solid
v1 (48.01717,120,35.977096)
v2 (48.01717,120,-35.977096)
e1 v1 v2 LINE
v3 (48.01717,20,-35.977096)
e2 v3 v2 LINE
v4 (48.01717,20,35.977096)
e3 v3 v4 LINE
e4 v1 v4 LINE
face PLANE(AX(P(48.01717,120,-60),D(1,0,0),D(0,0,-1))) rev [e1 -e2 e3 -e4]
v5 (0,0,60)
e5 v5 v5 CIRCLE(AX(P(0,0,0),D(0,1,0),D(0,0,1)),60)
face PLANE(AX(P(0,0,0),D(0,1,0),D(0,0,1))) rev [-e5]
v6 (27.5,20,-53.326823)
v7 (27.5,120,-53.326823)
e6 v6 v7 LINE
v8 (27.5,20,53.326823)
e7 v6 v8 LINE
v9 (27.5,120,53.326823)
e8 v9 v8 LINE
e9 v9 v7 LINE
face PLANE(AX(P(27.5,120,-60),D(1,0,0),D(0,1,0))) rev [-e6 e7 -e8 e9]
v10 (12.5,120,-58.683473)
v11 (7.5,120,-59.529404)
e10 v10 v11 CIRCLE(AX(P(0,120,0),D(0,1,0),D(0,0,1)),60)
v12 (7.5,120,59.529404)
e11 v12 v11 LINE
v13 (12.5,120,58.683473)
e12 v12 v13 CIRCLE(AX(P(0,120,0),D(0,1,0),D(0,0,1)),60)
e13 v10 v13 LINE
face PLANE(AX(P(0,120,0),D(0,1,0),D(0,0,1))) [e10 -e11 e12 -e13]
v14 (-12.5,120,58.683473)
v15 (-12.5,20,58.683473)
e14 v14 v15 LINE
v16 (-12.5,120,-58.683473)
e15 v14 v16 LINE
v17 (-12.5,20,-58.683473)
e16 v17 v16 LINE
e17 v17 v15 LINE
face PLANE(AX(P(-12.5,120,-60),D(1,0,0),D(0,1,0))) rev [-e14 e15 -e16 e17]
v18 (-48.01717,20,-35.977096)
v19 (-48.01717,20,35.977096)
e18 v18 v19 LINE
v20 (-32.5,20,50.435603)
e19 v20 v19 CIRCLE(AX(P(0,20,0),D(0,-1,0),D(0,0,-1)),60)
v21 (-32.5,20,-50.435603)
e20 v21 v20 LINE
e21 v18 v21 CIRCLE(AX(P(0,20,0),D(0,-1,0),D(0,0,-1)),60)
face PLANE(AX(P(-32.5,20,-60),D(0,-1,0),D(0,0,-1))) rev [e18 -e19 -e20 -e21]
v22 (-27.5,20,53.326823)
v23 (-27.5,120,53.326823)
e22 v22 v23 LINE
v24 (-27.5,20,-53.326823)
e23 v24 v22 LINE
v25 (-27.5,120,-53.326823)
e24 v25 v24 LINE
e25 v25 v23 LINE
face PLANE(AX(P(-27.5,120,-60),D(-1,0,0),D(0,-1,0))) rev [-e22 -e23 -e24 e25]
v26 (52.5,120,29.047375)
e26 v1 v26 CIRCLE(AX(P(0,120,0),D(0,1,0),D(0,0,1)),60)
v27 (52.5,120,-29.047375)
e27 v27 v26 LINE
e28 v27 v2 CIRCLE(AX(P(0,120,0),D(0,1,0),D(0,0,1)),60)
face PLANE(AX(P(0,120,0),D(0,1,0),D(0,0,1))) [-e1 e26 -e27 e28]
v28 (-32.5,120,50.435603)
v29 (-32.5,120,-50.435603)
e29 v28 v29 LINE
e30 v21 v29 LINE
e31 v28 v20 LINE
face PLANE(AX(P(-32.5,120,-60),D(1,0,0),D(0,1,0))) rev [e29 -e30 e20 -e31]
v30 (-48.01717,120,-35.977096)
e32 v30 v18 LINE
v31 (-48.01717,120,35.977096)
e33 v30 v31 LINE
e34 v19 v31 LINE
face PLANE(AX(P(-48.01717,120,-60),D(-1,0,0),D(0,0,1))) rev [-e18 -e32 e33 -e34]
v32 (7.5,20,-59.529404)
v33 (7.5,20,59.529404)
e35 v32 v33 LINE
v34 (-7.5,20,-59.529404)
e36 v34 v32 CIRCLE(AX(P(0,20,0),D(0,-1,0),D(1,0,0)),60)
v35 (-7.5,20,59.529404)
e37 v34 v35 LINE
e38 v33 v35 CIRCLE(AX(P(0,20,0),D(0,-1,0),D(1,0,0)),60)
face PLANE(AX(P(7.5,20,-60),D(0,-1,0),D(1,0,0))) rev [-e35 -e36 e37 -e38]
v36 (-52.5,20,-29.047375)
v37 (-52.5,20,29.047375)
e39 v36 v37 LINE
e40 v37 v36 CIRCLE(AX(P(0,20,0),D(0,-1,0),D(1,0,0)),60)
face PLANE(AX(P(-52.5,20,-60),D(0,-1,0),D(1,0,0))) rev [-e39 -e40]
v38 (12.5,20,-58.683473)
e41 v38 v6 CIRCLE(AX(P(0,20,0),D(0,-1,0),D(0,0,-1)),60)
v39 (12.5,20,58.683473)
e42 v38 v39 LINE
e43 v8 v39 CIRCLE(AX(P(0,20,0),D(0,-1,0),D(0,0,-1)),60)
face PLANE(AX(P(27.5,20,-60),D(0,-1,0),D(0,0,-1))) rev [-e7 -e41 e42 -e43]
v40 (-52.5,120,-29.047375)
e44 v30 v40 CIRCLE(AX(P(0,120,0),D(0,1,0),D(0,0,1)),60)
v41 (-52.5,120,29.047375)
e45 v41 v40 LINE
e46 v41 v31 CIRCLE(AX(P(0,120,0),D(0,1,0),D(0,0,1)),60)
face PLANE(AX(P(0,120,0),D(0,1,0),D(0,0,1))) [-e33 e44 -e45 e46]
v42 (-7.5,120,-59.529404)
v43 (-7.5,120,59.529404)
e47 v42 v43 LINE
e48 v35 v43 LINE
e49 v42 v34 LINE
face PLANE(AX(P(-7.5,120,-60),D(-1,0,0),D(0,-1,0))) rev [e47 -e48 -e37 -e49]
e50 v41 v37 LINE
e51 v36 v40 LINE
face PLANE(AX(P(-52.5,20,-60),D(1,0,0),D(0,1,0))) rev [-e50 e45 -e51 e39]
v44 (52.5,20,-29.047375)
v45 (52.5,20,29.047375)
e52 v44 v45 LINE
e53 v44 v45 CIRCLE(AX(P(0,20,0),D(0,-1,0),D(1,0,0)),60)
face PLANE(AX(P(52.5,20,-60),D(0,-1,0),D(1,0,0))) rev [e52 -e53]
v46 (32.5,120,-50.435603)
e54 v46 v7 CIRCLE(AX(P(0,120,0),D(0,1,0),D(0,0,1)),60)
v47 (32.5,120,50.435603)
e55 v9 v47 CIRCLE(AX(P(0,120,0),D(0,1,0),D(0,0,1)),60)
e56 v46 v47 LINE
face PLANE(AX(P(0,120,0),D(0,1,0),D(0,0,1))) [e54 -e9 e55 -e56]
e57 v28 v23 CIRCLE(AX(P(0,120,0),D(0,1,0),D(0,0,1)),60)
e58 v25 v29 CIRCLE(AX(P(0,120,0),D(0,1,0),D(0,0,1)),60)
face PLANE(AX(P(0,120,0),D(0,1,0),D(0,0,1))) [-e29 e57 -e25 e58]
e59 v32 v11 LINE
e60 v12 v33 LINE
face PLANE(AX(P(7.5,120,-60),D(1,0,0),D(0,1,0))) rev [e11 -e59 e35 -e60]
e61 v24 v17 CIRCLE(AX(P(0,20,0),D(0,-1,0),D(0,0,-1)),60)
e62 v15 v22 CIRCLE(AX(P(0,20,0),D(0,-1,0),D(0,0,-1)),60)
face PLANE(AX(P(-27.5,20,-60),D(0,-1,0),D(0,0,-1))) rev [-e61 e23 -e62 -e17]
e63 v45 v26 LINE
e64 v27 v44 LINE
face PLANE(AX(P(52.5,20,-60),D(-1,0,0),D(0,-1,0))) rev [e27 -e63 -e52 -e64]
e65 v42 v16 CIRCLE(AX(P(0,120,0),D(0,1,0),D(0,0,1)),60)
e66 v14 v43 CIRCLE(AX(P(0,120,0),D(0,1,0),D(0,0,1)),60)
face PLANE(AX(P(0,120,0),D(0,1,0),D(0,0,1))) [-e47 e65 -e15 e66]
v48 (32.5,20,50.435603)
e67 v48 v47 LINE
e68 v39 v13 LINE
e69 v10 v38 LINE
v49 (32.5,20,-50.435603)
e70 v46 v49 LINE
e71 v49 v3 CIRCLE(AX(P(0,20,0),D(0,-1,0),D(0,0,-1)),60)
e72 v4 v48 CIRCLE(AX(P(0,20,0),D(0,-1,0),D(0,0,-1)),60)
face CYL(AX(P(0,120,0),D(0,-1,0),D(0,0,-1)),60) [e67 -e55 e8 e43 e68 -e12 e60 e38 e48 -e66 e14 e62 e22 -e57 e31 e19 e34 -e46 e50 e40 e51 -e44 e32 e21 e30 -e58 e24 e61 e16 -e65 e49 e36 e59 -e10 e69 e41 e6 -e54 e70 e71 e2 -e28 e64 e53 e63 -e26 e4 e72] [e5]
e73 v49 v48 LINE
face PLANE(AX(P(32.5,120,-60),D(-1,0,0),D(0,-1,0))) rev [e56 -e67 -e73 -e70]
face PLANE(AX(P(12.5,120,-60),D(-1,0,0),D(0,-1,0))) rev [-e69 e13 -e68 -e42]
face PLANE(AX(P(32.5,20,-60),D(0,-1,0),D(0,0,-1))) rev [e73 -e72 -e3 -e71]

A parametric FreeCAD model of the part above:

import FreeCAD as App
import Part
import Sketcher
from FreeCAD import Vector

doc = App.newDocument("Part")
body = doc.addObject("PartDesign::Body", "Body")

# Sketch on XZ plane
sketch1 = body.newObject("Sketcher::SketchObject", "Sketch")
sketch1.AttachmentSupport = (doc.getObject("XZ_Plane"), [""])
sketch1.MapMode = "FlatFace"
sketch1.addGeometry(Part.Circle(Vector(0, 0, 0), Vector(0, 0, 1), 60), False)
sketch1.addConstraint([
    Sketcher.Constraint("Coincident", 0, 3, -1, 1),
    Sketcher.Constraint("Diameter", 0, 120.0),
])
pad1 = body.newObject("PartDesign::Pad", "Pad")
pad1.Profile = sketch1
pad1.Length = 120
pad1.Reversed = True

# Sketch on XY plane
sketch2 = body.newObject("Sketcher::SketchObject", "Sketch001")
sketch2.AttachmentSupport = (doc.getObject("XY_Plane"), [""])
sketch2.MapMode = "FlatFace"
sketch2.addGeometry([
    Part.LineSegment(Vector(-60, 120, 0), Vector(-60, 20, 0)),  # 0
    Part.LineSegment(Vector(-60, 20, 0), Vector(-52, 20, 0)),  # 1
    Part.LineSegment(Vector(-52, 20, 0), Vector(-52, 120, 0)),  # 2
    Part.LineSegment(Vector(-52, 120, 0), Vector(-60, 120, 0)),  # 3
    Part.LineSegment(Vector(-48, 120, 0), Vector(-48, 20, 0)),  # 4
    Part.LineSegment(Vector(-48, 20, 0), Vector(-32, 20, 0)),  # 5
    Part.LineSegment(Vector(-32, 20, 0), Vector(-32, 120, 0)),  # 6
    Part.LineSegment(Vector(-32, 120, 0), Vector(-48, 120, 0)),  # 7
    Part.LineSegment(Vector(-28, 120, 0), Vector(-28, 20, 0)),  # 8
    Part.LineSegment(Vector(-28, 20, 0), Vector(-12, 20, 0)),  # 9
    Part.LineSegment(Vector(-12, 20, 0), Vector(-12, 120, 0)),  # 10
    Part.LineSegment(Vector(-12, 120, 0), Vector(-28, 120, 0)),  # 11
    Part.LineSegment(Vector(-8, 120, 0), Vector(-8, 20, 0)),  # 12
    Part.LineSegment(Vector(-8, 20, 0), Vector(8, 20, 0)),  # 13
    Part.LineSegment(Vector(8, 20, 0), Vector(8, 120, 0)),  # 14
    Part.LineSegment(Vector(8, 120, 0), Vector(-8, 120, 0)),  # 15
    Part.LineSegment(Vector(12, 120, 0), Vector(12, 20, 0)),  # 16
    Part.LineSegment(Vector(12, 20, 0), Vector(28, 20, 0)),  # 17
    Part.LineSegment(Vector(28, 20, 0), Vector(28, 120, 0)),  # 18
    Part.LineSegment(Vector(28, 120, 0), Vector(12, 120, 0)),  # 19
    Part.LineSegment(Vector(32, 120, 0), Vector(32, 20, 0)),  # 20
    Part.LineSegment(Vector(32, 20, 0), Vector(48, 20, 0)),  # 21
    Part.LineSegment(Vector(48, 20, 0), Vector(48, 120, 0)),  # 22
    Part.LineSegment(Vector(48, 120, 0), Vector(32, 120, 0)),  # 23
    Part.LineSegment(Vector(52, 120, 0), Vector(52, 20, 0)),  # 24
    Part.LineSegment(Vector(52, 20, 0), Vector(60, 20, 0)),  # 25
    Part.LineSegment(Vector(60, 20, 0), Vector(60, 120, 0)),  # 26
    Part.LineSegment(Vector(60, 120, 0), Vector(52, 120, 0)),  # 27
], False)
sketch2.addConstraint([
    Sketcher.Constraint("Coincident", 0, 2, 1, 1),
    Sketcher.Constraint("Coincident", 1, 2, 2, 1),
    Sketcher.Constraint("Coincident", 2, 2, 3, 1),
    Sketcher.Constraint("Coincident", 3, 2, 0, 1),
    Sketcher.Constraint("Coincident", 4, 2, 5, 1),
    Sketcher.Constraint("Coincident", 5, 2, 6, 1),
    Sketcher.Constraint("Coincident", 6, 2, 7, 1),
    Sketcher.Constraint("Coincident", 7, 2, 4, 1),
    Sketcher.Constraint("Coincident", 8, 2, 9, 1),
    Sketcher.Constraint("Coincident", 9, 2, 10, 1),
    Sketcher.Constraint("Coincident", 10, 2, 11, 1),
    Sketcher.Constraint("Coincident", 11, 2, 8, 1),
    Sketcher.Constraint("Coincident", 12, 2, 13, 1),
    Sketcher.Constraint("Coincident", 13, 2, 14, 1),
    Sketcher.Constraint("Coincident", 14, 2, 15, 1),
    Sketcher.Constraint("Coincident", 15, 2, 12, 1),
    Sketcher.Constraint("Coincident", 16, 2, 17, 1),
    Sketcher.Constraint("Coincident", 17, 2, 18, 1),
    Sketcher.Constraint("Coincident", 18, 2, 19, 1),
    Sketcher.Constraint("Coincident", 19, 2, 16, 1),
    Sketcher.Constraint("Coincident", 20, 2, 21, 1),
    Sketcher.Constraint("Coincident", 21, 2, 22, 1),
    Sketcher.Constraint("Coincident", 22, 2, 23, 1),
    Sketcher.Constraint("Coincident", 23, 2, 20, 1),
    Sketcher.Constraint("Coincident", 24, 2, 25, 1),
    Sketcher.Constraint("Coincident", 25, 2, 26, 1),
    Sketcher.Constraint("Coincident", 26, 2, 27, 1),
    Sketcher.Constraint("Coincident", 27, 2, 24, 1),
    Sketcher.Constraint("Vertical", 0),
    Sketcher.Constraint("Horizontal", 1),
    Sketcher.Constraint("Vertical", 2),
    Sketcher.Constraint("Horizontal", 3),
    Sketcher.Constraint("Vertical", 4),
    Sketcher.Constraint("Horizontal", 5),
    Sketcher.Constraint("Vertical", 6),
    Sketcher.Constraint("Horizontal", 7),
    Sketcher.Constraint("Vertical", 8),
    Sketcher.Constraint("Horizontal", 9),
    Sketcher.Constraint("Vertical", 10),
    Sketcher.Constraint("Horizontal", 11),
    Sketcher.Constraint("Vertical", 12),
    Sketcher.Constraint("Horizontal", 13),
    Sketcher.Constraint("Vertical", 14),
    Sketcher.Constraint("Horizontal", 15),
    Sketcher.Constraint("Vertical", 16),
    Sketcher.Constraint("Horizontal", 17),
    Sketcher.Constraint("Vertical", 18),
    Sketcher.Constraint("Horizontal", 19),
    Sketcher.Constraint("Vertical", 20),
    Sketcher.Constraint("Horizontal", 21),
    Sketcher.Constraint("Vertical", 22),
    Sketcher.Constraint("Horizontal", 23),
    Sketcher.Constraint("Vertical", 24),
    Sketcher.Constraint("Horizontal", 25),
    Sketcher.Constraint("Vertical", 26),
    Sketcher.Constraint("Horizontal", 27),
    Sketcher.Constraint("Symmetric", 9, 2, 16, 2, -2),
    Sketcher.Constraint("Symmetric", 11, 2, 18, 2, -2),
    Sketcher.Constraint("Symmetric", 5, 2, 20, 2, -2),
    Sketcher.Constraint("Symmetric", 7, 2, 22, 2, -2),
    Sketcher.Constraint("Symmetric", 1, 2, 24, 2, -2),
    Sketcher.Constraint("Symmetric", 3, 2, 26, 2, -2),
    Sketcher.Constraint("Horizontal", 1, 2, 4, 2),
    Sketcher.Constraint("Horizontal", 3, 2, 6, 2),
    Sketcher.Constraint("Horizontal", 5, 2, 8, 2),
    Sketcher.Constraint("Horizontal", 7, 2, 10, 2),
    Sketcher.Constraint("Horizontal", 9, 2, 12, 2),
    Sketcher.Constraint("Horizontal", 11, 2, 14, 2),
    Sketcher.Constraint("Equal", 11, 13),
    Sketcher.Constraint("DistanceX", 9, 1, 9, 2, 15.0),
    Sketcher.Constraint("DistanceY", 0, 2, 0, 1, 100.0),
    Sketcher.Constraint("DistanceX", 1, 1, 1, 2, 7.5),
    Sketcher.Constraint("DistanceX", 0, 2, -1, 1, 60.0),
    Sketcher.Constraint("DistanceY", -1, 1, 0, 2, 20.0),
    Sketcher.Constraint("DistanceX", 1, 2, 5, 2, 20.0),
    Sketcher.Constraint("DistanceX", 5, 2, 8, 2, 5.0),
    Sketcher.Constraint("DistanceX", 9, 2, 12, 2, 5.0),
    Sketcher.Constraint("DistanceX", 5, 1, 5, 2, 15.51717),
])
pocket1 = body.newObject("PartDesign::Pocket", "Pocket")
pocket1.Profile = sketch2
pocket1.Length = 120
pocket1.Midplane = True

doc.recompute()
